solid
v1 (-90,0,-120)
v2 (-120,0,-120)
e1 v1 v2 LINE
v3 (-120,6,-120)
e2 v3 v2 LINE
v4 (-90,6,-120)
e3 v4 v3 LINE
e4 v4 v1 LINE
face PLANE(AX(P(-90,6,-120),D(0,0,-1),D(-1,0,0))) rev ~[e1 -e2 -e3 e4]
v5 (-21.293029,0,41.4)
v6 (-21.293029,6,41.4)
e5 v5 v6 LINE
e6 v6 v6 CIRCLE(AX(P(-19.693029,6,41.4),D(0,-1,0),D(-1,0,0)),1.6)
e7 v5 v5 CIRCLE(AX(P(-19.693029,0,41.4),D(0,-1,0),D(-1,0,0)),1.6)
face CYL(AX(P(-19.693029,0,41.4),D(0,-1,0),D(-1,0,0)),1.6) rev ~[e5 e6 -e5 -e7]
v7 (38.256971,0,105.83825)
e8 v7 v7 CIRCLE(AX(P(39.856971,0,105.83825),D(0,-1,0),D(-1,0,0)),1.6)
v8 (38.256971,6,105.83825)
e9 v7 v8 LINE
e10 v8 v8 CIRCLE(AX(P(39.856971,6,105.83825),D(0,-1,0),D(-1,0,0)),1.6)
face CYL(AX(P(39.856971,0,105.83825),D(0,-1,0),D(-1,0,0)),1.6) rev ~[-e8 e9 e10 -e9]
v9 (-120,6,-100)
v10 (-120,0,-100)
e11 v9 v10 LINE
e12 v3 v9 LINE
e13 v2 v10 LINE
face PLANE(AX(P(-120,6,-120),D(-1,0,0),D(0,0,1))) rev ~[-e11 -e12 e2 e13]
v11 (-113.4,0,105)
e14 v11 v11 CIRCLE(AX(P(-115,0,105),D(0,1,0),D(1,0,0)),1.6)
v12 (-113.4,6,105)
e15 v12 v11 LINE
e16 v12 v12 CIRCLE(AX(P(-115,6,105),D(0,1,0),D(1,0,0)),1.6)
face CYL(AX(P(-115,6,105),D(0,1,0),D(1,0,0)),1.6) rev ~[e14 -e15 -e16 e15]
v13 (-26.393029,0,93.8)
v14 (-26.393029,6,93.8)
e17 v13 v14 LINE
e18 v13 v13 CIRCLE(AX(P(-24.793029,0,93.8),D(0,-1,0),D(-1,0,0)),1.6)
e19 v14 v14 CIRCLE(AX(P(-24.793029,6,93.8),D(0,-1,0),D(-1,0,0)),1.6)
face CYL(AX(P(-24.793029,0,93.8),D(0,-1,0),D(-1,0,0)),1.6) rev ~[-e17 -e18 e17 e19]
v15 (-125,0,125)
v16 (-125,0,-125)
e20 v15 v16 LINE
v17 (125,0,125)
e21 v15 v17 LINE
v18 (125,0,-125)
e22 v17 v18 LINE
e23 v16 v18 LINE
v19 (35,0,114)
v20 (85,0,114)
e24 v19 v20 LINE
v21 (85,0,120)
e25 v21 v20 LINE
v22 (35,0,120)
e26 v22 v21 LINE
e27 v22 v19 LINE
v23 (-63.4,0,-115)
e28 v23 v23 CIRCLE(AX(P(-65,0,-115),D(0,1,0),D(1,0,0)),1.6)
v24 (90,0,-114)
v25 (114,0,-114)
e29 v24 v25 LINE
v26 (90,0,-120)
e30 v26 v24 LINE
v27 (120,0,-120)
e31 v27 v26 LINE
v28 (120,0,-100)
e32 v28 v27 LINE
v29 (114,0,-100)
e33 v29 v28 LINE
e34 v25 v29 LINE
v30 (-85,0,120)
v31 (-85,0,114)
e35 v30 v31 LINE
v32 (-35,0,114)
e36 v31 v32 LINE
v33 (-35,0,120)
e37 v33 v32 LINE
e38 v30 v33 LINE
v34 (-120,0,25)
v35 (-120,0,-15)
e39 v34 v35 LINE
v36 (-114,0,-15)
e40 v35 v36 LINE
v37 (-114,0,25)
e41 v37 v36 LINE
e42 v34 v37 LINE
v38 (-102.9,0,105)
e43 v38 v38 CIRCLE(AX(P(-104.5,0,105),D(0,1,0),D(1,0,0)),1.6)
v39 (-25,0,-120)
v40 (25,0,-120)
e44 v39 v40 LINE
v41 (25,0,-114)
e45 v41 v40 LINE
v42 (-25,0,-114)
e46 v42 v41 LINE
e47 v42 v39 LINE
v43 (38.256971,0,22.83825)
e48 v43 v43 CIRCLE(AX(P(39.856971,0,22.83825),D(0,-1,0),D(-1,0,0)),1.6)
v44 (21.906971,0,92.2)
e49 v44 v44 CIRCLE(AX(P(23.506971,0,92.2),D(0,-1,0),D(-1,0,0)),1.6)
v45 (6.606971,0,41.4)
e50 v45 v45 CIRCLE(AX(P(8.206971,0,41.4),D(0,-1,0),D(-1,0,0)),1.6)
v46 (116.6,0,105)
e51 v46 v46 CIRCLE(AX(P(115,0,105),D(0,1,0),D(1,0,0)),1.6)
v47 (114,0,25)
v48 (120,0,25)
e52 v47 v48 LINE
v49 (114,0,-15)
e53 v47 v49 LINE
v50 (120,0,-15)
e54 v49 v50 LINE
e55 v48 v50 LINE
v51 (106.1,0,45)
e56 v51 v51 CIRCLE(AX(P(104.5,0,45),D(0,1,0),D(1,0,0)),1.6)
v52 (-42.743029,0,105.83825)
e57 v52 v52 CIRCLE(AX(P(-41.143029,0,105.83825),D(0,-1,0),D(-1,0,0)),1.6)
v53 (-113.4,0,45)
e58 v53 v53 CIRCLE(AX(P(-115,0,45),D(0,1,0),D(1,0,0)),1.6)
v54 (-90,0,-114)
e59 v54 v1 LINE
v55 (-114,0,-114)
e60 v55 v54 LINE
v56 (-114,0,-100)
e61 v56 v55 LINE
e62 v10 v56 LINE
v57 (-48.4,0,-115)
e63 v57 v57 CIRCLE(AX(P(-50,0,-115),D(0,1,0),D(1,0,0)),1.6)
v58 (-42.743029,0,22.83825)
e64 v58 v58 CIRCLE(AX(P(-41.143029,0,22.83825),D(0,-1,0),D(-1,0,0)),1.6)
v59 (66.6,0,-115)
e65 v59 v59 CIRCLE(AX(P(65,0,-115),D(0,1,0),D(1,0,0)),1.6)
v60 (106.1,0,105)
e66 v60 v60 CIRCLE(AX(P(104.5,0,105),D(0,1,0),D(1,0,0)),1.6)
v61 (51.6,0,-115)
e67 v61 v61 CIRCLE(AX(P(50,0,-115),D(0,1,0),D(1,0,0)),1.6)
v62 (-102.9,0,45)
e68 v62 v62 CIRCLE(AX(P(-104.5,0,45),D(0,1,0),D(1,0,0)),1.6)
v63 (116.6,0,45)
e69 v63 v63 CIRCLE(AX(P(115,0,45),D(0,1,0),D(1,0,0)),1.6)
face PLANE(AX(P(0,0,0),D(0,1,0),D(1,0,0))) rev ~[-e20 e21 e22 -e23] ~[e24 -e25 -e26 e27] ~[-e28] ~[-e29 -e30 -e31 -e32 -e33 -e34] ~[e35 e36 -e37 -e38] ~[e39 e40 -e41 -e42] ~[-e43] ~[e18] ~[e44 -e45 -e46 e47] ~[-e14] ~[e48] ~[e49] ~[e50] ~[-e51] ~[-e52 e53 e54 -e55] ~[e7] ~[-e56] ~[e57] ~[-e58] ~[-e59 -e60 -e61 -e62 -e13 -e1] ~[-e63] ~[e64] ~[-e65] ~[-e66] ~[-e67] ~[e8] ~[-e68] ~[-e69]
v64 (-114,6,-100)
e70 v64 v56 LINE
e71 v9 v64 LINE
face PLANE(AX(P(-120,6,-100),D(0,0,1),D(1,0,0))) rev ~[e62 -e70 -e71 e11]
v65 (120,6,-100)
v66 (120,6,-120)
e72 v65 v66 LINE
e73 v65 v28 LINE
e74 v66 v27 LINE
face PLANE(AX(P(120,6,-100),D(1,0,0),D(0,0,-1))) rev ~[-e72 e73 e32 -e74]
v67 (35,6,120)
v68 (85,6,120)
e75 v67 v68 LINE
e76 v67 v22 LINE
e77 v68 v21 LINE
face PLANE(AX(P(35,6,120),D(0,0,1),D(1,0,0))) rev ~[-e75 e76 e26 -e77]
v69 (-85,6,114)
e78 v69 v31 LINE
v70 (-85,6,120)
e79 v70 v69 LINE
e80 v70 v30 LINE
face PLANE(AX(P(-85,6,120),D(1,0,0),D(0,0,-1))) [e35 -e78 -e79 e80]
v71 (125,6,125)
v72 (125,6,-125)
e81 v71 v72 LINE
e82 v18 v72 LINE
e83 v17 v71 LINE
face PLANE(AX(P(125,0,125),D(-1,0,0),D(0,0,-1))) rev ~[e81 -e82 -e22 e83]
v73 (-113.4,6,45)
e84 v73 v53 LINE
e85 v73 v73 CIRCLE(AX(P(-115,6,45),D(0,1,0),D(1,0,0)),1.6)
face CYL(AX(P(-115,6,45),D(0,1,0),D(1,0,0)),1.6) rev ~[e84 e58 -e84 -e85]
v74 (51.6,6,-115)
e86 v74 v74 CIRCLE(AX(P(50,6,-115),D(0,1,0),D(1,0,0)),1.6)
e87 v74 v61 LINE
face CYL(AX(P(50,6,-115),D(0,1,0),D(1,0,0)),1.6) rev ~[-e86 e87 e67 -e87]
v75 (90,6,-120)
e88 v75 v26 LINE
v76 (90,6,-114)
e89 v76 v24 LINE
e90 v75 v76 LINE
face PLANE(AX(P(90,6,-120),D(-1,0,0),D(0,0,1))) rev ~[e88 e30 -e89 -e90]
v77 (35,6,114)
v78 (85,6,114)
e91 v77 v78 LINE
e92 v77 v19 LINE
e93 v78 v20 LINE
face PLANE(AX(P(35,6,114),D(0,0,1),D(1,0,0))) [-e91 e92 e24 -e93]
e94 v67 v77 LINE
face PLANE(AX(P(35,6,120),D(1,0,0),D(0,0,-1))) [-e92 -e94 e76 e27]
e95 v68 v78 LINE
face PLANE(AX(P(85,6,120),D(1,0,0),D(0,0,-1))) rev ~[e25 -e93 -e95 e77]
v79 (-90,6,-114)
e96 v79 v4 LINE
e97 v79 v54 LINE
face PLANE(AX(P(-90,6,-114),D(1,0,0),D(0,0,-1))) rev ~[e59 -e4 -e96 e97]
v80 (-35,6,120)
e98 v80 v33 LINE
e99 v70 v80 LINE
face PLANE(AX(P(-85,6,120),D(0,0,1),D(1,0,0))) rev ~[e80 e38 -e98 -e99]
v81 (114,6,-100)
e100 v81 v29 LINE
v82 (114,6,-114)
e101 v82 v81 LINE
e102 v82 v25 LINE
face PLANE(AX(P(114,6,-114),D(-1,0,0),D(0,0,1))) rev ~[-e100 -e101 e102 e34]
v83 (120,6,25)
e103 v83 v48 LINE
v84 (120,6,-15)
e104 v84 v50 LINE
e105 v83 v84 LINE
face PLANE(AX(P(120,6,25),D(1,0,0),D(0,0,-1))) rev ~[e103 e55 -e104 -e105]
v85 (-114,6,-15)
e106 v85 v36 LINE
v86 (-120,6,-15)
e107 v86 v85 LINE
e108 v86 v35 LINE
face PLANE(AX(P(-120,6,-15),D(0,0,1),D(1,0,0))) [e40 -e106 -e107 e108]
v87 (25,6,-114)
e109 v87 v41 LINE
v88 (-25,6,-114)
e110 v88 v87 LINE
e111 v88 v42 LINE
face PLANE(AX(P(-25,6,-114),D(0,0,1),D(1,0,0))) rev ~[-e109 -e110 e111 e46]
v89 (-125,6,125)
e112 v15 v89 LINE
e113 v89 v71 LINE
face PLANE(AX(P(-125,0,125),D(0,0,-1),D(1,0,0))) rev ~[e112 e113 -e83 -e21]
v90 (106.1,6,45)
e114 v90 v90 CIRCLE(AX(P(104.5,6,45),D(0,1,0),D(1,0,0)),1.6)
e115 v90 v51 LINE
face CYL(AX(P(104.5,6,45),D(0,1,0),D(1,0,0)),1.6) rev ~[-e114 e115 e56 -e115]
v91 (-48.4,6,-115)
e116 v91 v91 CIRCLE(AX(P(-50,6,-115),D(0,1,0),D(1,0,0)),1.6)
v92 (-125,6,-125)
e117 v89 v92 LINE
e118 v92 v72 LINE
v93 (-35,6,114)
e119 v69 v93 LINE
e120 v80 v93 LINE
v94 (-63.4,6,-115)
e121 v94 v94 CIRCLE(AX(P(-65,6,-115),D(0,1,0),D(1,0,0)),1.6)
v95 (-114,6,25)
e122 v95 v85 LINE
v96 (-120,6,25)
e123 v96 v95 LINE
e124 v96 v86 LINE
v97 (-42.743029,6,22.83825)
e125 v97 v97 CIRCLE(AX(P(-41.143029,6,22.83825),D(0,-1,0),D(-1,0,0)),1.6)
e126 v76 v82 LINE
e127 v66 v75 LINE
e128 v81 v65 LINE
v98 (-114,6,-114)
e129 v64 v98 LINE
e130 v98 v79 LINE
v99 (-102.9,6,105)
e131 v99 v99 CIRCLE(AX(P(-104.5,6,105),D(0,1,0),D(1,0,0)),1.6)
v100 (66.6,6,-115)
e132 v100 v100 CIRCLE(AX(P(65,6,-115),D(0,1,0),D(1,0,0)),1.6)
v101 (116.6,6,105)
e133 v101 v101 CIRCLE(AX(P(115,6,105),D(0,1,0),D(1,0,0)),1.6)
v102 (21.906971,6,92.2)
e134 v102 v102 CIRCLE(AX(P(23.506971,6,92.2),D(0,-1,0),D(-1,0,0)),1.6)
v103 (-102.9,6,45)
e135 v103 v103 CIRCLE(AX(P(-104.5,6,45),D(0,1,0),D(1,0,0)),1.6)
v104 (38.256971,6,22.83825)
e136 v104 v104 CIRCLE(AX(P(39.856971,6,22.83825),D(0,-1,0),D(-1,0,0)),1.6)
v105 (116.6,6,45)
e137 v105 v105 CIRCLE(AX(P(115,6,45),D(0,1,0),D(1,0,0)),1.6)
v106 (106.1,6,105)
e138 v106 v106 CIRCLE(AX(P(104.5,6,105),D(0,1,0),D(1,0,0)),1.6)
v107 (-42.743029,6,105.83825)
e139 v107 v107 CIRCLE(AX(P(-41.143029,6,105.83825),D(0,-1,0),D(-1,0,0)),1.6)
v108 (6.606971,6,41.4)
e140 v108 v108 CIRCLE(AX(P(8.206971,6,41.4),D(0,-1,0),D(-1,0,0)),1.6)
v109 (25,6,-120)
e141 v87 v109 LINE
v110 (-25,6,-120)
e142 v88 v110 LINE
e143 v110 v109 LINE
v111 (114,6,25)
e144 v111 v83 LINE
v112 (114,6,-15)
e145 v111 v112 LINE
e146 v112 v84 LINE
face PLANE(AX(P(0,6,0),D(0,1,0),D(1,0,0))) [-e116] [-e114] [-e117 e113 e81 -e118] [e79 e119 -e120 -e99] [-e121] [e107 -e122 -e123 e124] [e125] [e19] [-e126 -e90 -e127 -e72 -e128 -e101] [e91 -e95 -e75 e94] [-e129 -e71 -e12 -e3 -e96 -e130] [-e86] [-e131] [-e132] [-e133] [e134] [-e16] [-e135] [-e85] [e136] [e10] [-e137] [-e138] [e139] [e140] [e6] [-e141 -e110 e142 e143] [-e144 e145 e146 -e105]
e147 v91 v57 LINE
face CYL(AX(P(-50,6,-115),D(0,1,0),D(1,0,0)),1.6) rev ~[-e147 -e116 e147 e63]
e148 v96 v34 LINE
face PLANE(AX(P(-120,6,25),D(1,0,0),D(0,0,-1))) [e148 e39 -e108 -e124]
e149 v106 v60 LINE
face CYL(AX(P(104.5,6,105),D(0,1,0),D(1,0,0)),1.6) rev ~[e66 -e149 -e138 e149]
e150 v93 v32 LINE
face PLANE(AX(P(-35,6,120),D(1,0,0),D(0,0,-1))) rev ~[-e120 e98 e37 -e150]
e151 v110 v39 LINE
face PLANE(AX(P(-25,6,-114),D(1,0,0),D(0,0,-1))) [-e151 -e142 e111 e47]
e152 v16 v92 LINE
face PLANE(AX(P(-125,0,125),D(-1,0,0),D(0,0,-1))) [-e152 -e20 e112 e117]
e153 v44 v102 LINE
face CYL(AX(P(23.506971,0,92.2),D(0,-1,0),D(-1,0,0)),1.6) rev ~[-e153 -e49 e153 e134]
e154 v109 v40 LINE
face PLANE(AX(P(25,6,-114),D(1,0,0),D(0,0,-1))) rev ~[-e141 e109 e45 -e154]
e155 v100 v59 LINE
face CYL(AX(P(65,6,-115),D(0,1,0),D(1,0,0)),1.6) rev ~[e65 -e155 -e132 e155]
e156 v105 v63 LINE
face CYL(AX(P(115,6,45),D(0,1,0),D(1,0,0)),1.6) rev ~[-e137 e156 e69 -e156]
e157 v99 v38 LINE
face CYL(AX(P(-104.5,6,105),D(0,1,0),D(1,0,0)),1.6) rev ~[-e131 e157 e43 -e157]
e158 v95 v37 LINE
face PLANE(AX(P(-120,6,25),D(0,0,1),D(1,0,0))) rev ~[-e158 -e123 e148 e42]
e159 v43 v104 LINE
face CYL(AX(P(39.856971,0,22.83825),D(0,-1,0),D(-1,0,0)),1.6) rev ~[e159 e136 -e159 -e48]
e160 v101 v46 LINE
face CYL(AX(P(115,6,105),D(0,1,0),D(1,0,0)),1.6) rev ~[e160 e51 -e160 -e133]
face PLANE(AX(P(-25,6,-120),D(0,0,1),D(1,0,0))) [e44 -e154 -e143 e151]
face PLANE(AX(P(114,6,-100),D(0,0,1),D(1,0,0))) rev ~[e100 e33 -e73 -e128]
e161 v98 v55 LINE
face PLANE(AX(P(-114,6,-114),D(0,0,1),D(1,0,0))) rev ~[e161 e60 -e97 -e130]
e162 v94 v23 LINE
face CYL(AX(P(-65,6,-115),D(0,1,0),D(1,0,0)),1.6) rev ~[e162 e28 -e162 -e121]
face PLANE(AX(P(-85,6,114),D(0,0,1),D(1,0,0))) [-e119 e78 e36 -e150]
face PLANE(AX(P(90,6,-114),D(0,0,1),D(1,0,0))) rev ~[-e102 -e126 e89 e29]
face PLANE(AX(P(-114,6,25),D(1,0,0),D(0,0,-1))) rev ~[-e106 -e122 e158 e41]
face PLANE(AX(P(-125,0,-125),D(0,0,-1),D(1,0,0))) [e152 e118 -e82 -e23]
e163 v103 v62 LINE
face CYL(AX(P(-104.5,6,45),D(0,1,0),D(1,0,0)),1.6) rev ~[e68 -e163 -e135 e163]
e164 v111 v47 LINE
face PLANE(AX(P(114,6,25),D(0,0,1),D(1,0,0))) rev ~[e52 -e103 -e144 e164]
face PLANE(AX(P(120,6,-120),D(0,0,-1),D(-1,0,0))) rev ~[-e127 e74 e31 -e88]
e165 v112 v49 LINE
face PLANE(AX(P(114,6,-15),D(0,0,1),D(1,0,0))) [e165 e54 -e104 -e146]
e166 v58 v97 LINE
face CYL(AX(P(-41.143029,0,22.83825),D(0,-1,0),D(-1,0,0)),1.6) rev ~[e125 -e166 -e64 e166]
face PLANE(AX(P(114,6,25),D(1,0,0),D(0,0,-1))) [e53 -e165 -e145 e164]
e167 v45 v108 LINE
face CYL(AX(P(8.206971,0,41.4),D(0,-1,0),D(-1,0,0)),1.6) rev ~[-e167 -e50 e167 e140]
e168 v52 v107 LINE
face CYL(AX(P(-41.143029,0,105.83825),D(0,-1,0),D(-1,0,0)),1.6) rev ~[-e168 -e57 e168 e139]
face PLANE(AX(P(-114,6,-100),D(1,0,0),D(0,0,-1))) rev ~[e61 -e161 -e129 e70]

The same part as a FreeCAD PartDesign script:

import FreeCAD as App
import Part
import Sketcher

doc = App.newDocument("Part")
body = doc.addObject("PartDesign::Body", "Body")

sketch1 = body.newObject("Sketcher::SketchObject", "Sketch")
sketch1.AttachmentSupport = (doc.getObject("XZ_Plane"), [""])
sketch1.MapMode = "FlatFace"
sketch1.addGeometry(Part.LineSegment(App.Vector(-125, -125, 0), App.Vector(-125, 125, 0)), False)
sketch1.addGeometry(Part.LineSegment(App.Vector(-125, 125, 0), App.Vector(125, 125, 0)), False)
sketch1.addGeometry(Part.LineSegment(App.Vector(125, 125, 0), App.Vector(125, -125, 0)), False)
sketch1.addGeometry(Part.LineSegment(App.Vector(125, -125, 0), App.Vector(-125, -125, 0)), False)
sketch1.addConstraint(Sketcher.Constraint("Coincident", 0, 2, 1, 1))
sketch1.addConstraint(Sketcher.Constraint("Coincident", 1, 2, 2, 1))
sketch1.addConstraint(Sketcher.Constraint("Coincident", 2, 2, 3, 1))
sketch1.addConstraint(Sketcher.Constraint("Coincident", 3, 2, 0, 1))
sketch1.addConstraint(Sketcher.Constraint("Vertical", 0))
sketch1.addConstraint(Sketcher.Constraint("Horizontal", 1))
sketch1.addConstraint(Sketcher.Constraint("Vertical", 2))
sketch1.addConstraint(Sketcher.Constraint("Horizontal", 3))
sketch1.addConstraint(Sketcher.Constraint("Symmetric", 0, 2, 2, 2, -1, 1))
sketch1.addConstraint(Sketcher.Constraint("Equal", 3, 0))
sketch1.addConstraint(Sketcher.Constraint("DistanceX", 1, 1, 1, 2, 250.0))
pad1 = body.newObject("PartDesign::Pad", "Pad")
pad1.Profile = sketch1
pad1.Length = 6
pad1.Reversed = True

sketch2 = body.newObject("Sketcher::SketchObject", "Sketch001")
sketch2.AttachmentSupport = (doc.getObject("XZ_Plane"), [""])
sketch2.MapMode = "FlatFace"
sketch2.AttachmentOffset = App.Placement(App.Vector(0, 0, -6), App.Rotation())
sketch2.addGeometry(Part.Circle(App.Vector(-115, 105, 0), App.Vector(0, 0, 1), 1.6), False)
sketch2.addConstraint(Sketcher.Constraint("Diameter", 0, 3.2))
sketch2.addConstraint(Sketcher.Constraint("DistanceX", 0, 3, -1, 1, 115.0))
sketch2.addConstraint(Sketcher.Constraint("DistanceY", -1, 1, 0, 3, 105.0))
pocket1 = body.newObject("PartDesign::Pocket", "Pocket")
pocket1.Profile = sketch2
pocket1.Type = "UpToFirst"
pocket1.Reversed = True

sketch3 = body.newObject("Sketcher::SketchObject", "Sketch002")
sketch3.AttachmentSupport = (doc.getObject("XZ_Plane"), [""])
sketch3.MapMode = "FlatFace"
sketch3.AttachmentOffset = App.Placement(App.Vector(0, 0, -6), App.Rotation())
sketch3.addGeometry(Part.Circle(App.Vector(-104.5, 105, 0), App.Vector(0, 0, 1), 1.6), False)
sketch3.addConstraint(Sketcher.Constraint("Diameter", 0, 3.2))
sketch3.addConstraint(Sketcher.Constraint("DistanceY", -1, 1, 0, 3, 105.0))
sketch3.addConstraint(Sketcher.Constraint("DistanceX", 0, 3, -1, 1, 104.5))
pocket2 = body.newObject("PartDesign::Pocket", "Pocket001")
pocket2.Profile = sketch3
pocket2.Type = "UpToFirst"
pocket2.Reversed = True

sketch4 = body.newObject("Sketcher::SketchObject", "Sketch003")
sketch4.AttachmentSupport = (doc.getObject("XZ_Plane"), [""])
sketch4.MapMode = "FlatFace"
sketch4.AttachmentOffset = App.Placement(App.Vector(0, 0, -6), App.Rotation())
sketch4.addGeometry(Part.Circle(App.Vector(-115, 45, 0), App.Vector(0, 0, 1), 1.6), False)
sketch4.addConstraint(Sketcher.Constraint("Diameter", 0, 3.2))
sketch4.addConstraint(Sketcher.Constraint("DistanceX", 0, 3, -1, 1, 115.0))
sketch4.addConstraint(Sketcher.Constraint("DistanceY", -1, 1, 0, 3, 45.0))
pocket3 = body.newObject("PartDesign::Pocket", "Pocket002")
pocket3.Profile = sketch4
pocket3.Type = "UpToFirst"
pocket3.Reversed = True

sketch5 = body.newObject("Sketcher::SketchObject", "Sketch004")
sketch5.AttachmentSupport = (doc.getObject("XZ_Plane"), [""])
sketch5.MapMode = "FlatFace"
sketch5.AttachmentOffset = App.Placement(App.Vector(0, 0, -6), App.Rotation())
sketch5.addGeometry(Part.Circle(App.Vector(-104.5, 45, 0), App.Vector(0, 0, 1), 1.6), False)
sketch5.addConstraint(Sketcher.Constraint("Diameter", 0, 3.2))
sketch5.addConstraint(Sketcher.Constraint("DistanceY", -1, 1, 0, 3, 45.0))
sketch5.addConstraint(Sketcher.Constraint("DistanceX", 0, 3, -1, 1, 104.5))
pocket4 = body.newObject("PartDesign::Pocket", "Pocket003")
pocket4.Profile = sketch5
pocket4.Type = "UpToFirst"
pocket4.Reversed = True

sketch6 = body.newObject("Sketcher::SketchObject", "Sketch005")
sketch6.AttachmentSupport = (doc.getObject("XZ_Plane"), [""])
sketch6.MapMode = "FlatFace"
sketch6.AttachmentOffset = App.Placement(App.Vector(0, 0, -6), App.Rotation())
sketch6.addGeometry(Part.Circle(App.Vector(115, 45, 0), App.Vector(0, 0, 1), 1.6), False)
sketch6.addConstraint(Sketcher.Constraint("Diameter", 0, 3.2))
sketch6.addConstraint(Sketcher.Constraint("DistanceX", -1, 1, 0, 3, 115.0))
sketch6.addConstraint(Sketcher.Constraint("DistanceY", -1, 1, 0, 3, 45.0))
pocket5 = body.newObject("PartDesign::Pocket", "Pocket004")
pocket5.Profile = sketch6
pocket5.Type = "UpToFirst"
pocket5.Reversed = True

sketch7 = body.newObject("Sketcher::SketchObject", "Sketch006")
sketch7.AttachmentSupport = (doc.getObject("XZ_Plane"), [""])
sketch7.MapMode = "FlatFace"
sketch7.AttachmentOffset = App.Placement(App.Vector(0, 0, -6), App.Rotation())
sketch7.addGeometry(Part.Circle(App.Vector(104.5, 45, 0), App.Vector(0, 0, 1), 1.6), False)
sketch7.addConstraint(Sketcher.Constraint("Diameter", 0, 3.2))
sketch7.addConstraint(Sketcher.Constraint("DistanceY", -1, 1, 0, 3, 45.0))
sketch7.addConstraint(Sketcher.Constraint("DistanceX", -1, 1, 0, 3, 104.5))
pocket6 = body.newObject("PartDesign::Pocket", "Pocket005")
pocket6.Profile = sketch7
pocket6.Type = "UpToFirst"
pocket6.Reversed = True

sketch8 = body.newObject("Sketcher::SketchObject", "Sketch007")
sketch8.AttachmentSupport = (doc.getObject("XZ_Plane"), [""])
sketch8.MapMode = "FlatFace"
sketch8.AttachmentOffset = App.Placement(App.Vector(0, 0, -6), App.Rotation())
sketch8.addGeometry(Part.Circle(App.Vector(115, 105, 0), App.Vector(0, 0, 1), 1.6), False)
sketch8.addConstraint(Sketcher.Constraint("Diameter", 0, 3.2))
sketch8.addConstraint(Sketcher.Constraint("DistanceX", -1, 1, 0, 3, 115.0))
sketch8.addConstraint(Sketcher.Constraint("DistanceY", -1, 1, 0, 3, 105.0))
pocket7 = body.newObject("PartDesign::Pocket", "Pocket006")
pocket7.Profile = sketch8
pocket7.Type = "UpToFirst"
pocket7.Reversed = True

sketch9 = body.newObject("Sketcher::SketchObject", "Sketch008")
sketch9.AttachmentSupport = (doc.getObject("XZ_Plane"), [""])
sketch9.MapMode = "FlatFace"
sketch9.AttachmentOffset = App.Placement(App.Vector(0, 0, -6), App.Rotation())
sketch9.addGeometry(Part.Circle(App.Vector(104.5, 105, 0), App.Vector(0, 0, 1), 1.6), False)
sketch9.addConstraint(Sketcher.Constraint("Diameter", 0, 3.2))
sketch9.addConstraint(Sketcher.Constraint("DistanceY", -1, 1, 0, 3, 105.0))
sketch9.addConstraint(Sketcher.Constraint("DistanceX", -1, 1, 0, 3, 104.5))
pocket8 = body.newObject("PartDesign::Pocket", "Pocket007")
pocket8.Profile = sketch9
pocket8.Type = "UpToFirst"
pocket8.Reversed = True

sketch10 = body.newObject("Sketcher::SketchObject", "Sketch009")
sketch10.AttachmentSupport = (doc.getObject("XZ_Plane"), [""])
sketch10.MapMode = "FlatFace"
sketch10.AttachmentOffset = App.Placement(App.Vector(0, 0, -6), App.Rotation())
sketch10.addGeometry(Part.Circle(App.Vector(-65, -115, 0), App.Vector(0, 0, 1), 1.6), False)
sketch10.addConstraint(Sketcher.Constraint("Diameter", 0, 3.2))
sketch10.addConstraint(Sketcher.Constraint("DistanceX", 0, 3, -1, 1, 65.0))
sketch10.addConstraint(Sketcher.Constraint("DistanceY", 0, 3, -1, 1, 115.0))
pocket9 = body.newObject("PartDesign::Pocket", "Pocket008")
pocket9.Profile = sketch10
pocket9.Type = "UpToFirst"
pocket9.Reversed = True

sketch11 = body.newObject("Sketcher::SketchObject", "Sketch010")
sketch11.AttachmentSupport = (doc.getObject("XZ_Plane"), [""])
sketch11.MapMode = "FlatFace"
sketch11.AttachmentOffset = App.Placement(App.Vector(0, 0, -6), App.Rotation())
sketch11.addGeometry(Part.Circle(App.Vector(-50, -115, 0), App.Vector(0, 0, 1), 1.6), False)
sketch11.addConstraint(Sketcher.Constraint("Diameter", 0, 3.2))
sketch11.addConstraint(Sketcher.Constraint("DistanceX", 0, 3, -1, 1, 50.0))
sketch11.addConstraint(Sketcher.Constraint("DistanceY", 0, 3, -1, 1, 115.0))
pocket10 = body.newObject("PartDesign::Pocket", "Pocket009")
pocket10.Profile = sketch11
pocket10.Type = "UpToFirst"
pocket10.Reversed = True

sketch12 = body.newObject("Sketcher::SketchObject", "Sketch011")
sketch12.AttachmentSupport = (doc.getObject("XZ_Plane"), [""])
sketch12.MapMode = "FlatFace"
sketch12.AttachmentOffset = App.Placement(App.Vector(0, 0, -6), App.Rotation())
sketch12.addGeometry(Part.Circle(App.Vector(50, -115, 0), App.Vector(0, 0, 1), 1.6), False)
sketch12.addConstraint(Sketcher.Constraint("Diameter", 0, 3.2))
sketch12.addConstraint(Sketcher.Constraint("DistanceX", -1, 1, 0, 3, 50.0))
sketch12.addConstraint(Sketcher.Constraint("DistanceY", 0, 3, -1, 1, 115.0))
pocket11 = body.newObject("PartDesign::Pocket", "Pocket010")
pocket11.Profile = sketch12
pocket11.Type = "UpToFirst"
pocket11.Reversed = True

sketch13 = body.newObject("Sketcher::SketchObject", "Sketch012")
sketch13.AttachmentSupport = (doc.getObject("XZ_Plane"), [""])
sketch13.MapMode = "FlatFace"
sketch13.AttachmentOffset = App.Placement(App.Vector(0, 0, -6), App.Rotation())
sketch13.addGeometry(Part.Circle(App.Vector(65, -115, 0), App.Vector(0, 0, 1), 1.6), False)
sketch13.addConstraint(Sketcher.Constraint("Diameter", 0, 3.2))
sketch13.addConstraint(Sketcher.Constraint("DistanceX", -1, 1, 0, 3, 65.0))
sketch13.addConstraint(Sketcher.Constraint("DistanceY", 0, 3, -1, 1, 115.0))
pocket12 = body.newObject("PartDesign::Pocket", "Pocket011")
pocket12.Profile = sketch13
pocket12.Type = "UpToFirst"
pocket12.Reversed = True

sketch14 = body.newObject("Sketcher::SketchObject", "Sketch013")
sketch14.AttachmentSupport = (doc.getObject("XZ_Plane"), [""])
sketch14.MapMode = "FlatFace"
sketch14.AttachmentOffset = App.Placement(App.Vector(0, 0, -6), App.Rotation())
sketch14.addGeometry(Part.LineSegment(App.Vector(-90, -120, 0), App.Vector(-120, -120, 0)), False)
sketch14.addGeometry(Part.LineSegment(App.Vector(-120, -120, 0), App.Vector(-120, -100, 0)), False)
sketch14.addGeometry(Part.LineSegment(App.Vector(-120, -100, 0), App.Vector(-114, -100, 0)), False)
sketch14.addGeometry(Part.LineSegment(App.Vector(-114, -100, 0), App.Vector(-114, -114, 0)), False)
sketch14.addGeometry(Part.LineSegment(App.Vector(-114, -114, 0), App.Vector(-90, -114, 0)), False)
sketch14.addGeometry(Part.LineSegment(App.Vector(-90, -114, 0), App.Vector(-90, -120, 0)), False)
sketch14.addGeometry(Part.LineSegment(App.Vector(-120, -15, 0), App.Vector(-120, 25, 0)), False)
sketch14.addGeometry(Part.LineSegment(App.Vector(-120, 25, 0), App.Vector(-114, 25, 0)), False)
sketch14.addGeometry(Part.LineSegment(App.Vector(-114, 25, 0), App.Vector(-114, -15, 0)), False)
sketch14.addGeometry(Part.LineSegment(App.Vector(-114, -15, 0), App.Vector(-120, -15, 0)), False)
sketch14.addGeometry(Part.LineSegment(App.Vector(-85, 114, 0), App.Vector(-85, 120, 0)), False)
sketch14.addGeometry(Part.LineSegment(App.Vector(-85, 120, 0), App.Vector(-35, 120, 0)), False)
sketch14.addGeometry(Part.LineSegment(App.Vector(-35, 120, 0), App.Vector(-35, 114, 0)), False)
sketch14.addGeometry(Part.LineSegment(App.Vector(-35, 114, 0), App.Vector(-85, 114, 0)), False)
sketch14.addGeometry(Part.LineSegment(App.Vector(35, 114, 0), App.Vector(35, 120, 0)), False)
sketch14.addGeometry(Part.LineSegment(App.Vector(35, 120, 0), App.Vector(85, 120, 0)), False)
sketch14.addGeometry(Part.LineSegment(App.Vector(85, 120, 0), App.Vector(85, 114, 0)), False)
sketch14.addGeometry(Part.LineSegment(App.Vector(85, 114, 0), App.Vector(35, 114, 0)), False)
sketch14.addGeometry(Part.LineSegment(App.Vector(120, -100, 0), App.Vector(120, -120, 0)), False)
sketch14.addGeometry(Part.LineSegment(App.Vector(120, -120, 0), App.Vector(90, -120, 0)), False)
sketch14.addGeometry(Part.LineSegment(App.Vector(90, -120, 0), App.Vector(90, -114, 0)), False)
sketch14.addGeometry(Part.LineSegment(App.Vector(90, -114, 0), App.Vector(114, -114, 0)), False)
sketch14.addGeometry(Part.LineSegment(App.Vector(114, -114, 0), App.Vector(114, -100, 0)), False)
sketch14.addGeometry(Part.LineSegment(App.Vector(114, -100, 0), App.Vector(120, -100, 0)), False)
sketch14.addGeometry(Part.LineSegment(App.Vector(114, -15, 0), App.Vector(114, 25, 0)), False)
sketch14.addGeometry(Part.LineSegment(App.Vector(114, 25, 0), App.Vector(120, 25, 0)), False)
sketch14.addGeometry(Part.LineSegment(App.Vector(120, 25, 0), App.Vector(120, -15, 0)), False)
sketch14.addGeometry(Part.LineSegment(App.Vector(120, -15, 0), App.Vector(114, -15, 0)), False)
sketch14.addGeometry(Part.LineSegment(App.Vector(-25, -120, 0), App.Vector(-25, -114, 0)), False)
sketch14.addGeometry(Part.LineSegment(App.Vector(-25, -114, 0), App.Vector(25, -114, 0)), False)
sketch14.addGeometry(Part.LineSegment(App.Vector(25, -114, 0), App.Vector(25, -120, 0)), False)
sketch14.addGeometry(Part.LineSegment(App.Vector(25, -120, 0), App.Vector(-25, -120, 0)), False)
sketch14.addConstraint(Sketcher.Constraint("Coincident", 0, 2, 1, 1))
sketch14.addConstraint(Sketcher.Constraint("Coincident", 1, 2, 2, 1))
sketch14.addConstraint(Sketcher.Constraint("Coincident", 2, 2, 3, 1))
sketch14.addConstraint(Sketcher.Constraint("Coincident", 3, 2, 4, 1))
sketch14.addConstraint(Sketcher.Constraint("Coincident", 4, 2, 5, 1))
sketch14.addConstraint(Sketcher.Constraint("Coincident", 5, 2, 0, 1))
sketch14.addConstraint(Sketcher.Constraint("Coincident", 6, 2, 7, 1))
sketch14.addConstraint(Sketcher.Constraint("Coincident", 7, 2, 8, 1))
sketch14.addConstraint(Sketcher.Constraint("Coincident", 8, 2, 9, 1))
sketch14.addConstraint(Sketcher.Constraint("Coincident", 9, 2, 6, 1))
sketch14.addConstraint(Sketcher.Constraint("Coincident", 10, 2, 11, 1))
sketch14.addConstraint(Sketcher.Constraint("Coincident", 11, 2, 12, 1))
sketch14.addConstraint(Sketcher.Constraint("Coincident", 12, 2, 13, 1))
sketch14.addConstraint(Sketcher.Constraint("Coincident", 13, 2, 10, 1))
sketch14.addConstraint(Sketcher.Constraint("Coincident", 14, 2, 15, 1))
sketch14.addConstraint(Sketcher.Constraint("Coincident", 15, 2, 16, 1))
sketch14.addConstraint(Sketcher.Constraint("Coincident", 16, 2, 17, 1))
sketch14.addConstraint(Sketcher.Constraint("Coincident", 17, 2, 14, 1))
sketch14.addConstraint(Sketcher.Constraint("Coincident", 18, 2, 19, 1))
sketch14.addConstraint(Sketcher.Constraint("Coincident", 19, 2, 20, 1))
sketch14.addConstraint(Sketcher.Constraint("Coincident", 20, 2, 21, 1))
sketch14.addConstraint(Sketcher.Constraint("Coincident", 21, 2, 22, 1))
sketch14.addConstraint(Sketcher.Constraint("Coincident", 22, 2, 23, 1))
sketch14.addConstraint(Sketcher.Constraint("Coincident", 23, 2, 18, 1))
sketch14.addConstraint(Sketcher.Constraint("Coincident", 24, 2, 25, 1))
sketch14.addConstraint(Sketcher.Constraint("Coincident", 25, 2, 26, 1))
sketch14.addConstraint(Sketcher.Constraint("Coincident", 26, 2, 27, 1))
sketch14.addConstraint(Sketcher.Constraint("Coincident", 27, 2, 24, 1))
sketch14.addConstraint(Sketcher.Constraint("Coincident", 28, 2, 29, 1))
sketch14.addConstraint(Sketcher.Constraint("Coincident", 29, 2, 30, 1))
sketch14.addConstraint(Sketcher.Constraint("Coincident", 30, 2, 31, 1))
sketch14.addConstraint(Sketcher.Constraint("Coincident", 31, 2, 28, 1))
sketch14.addConstraint(Sketcher.Constraint("Horizontal", 0))
sketch14.addConstraint(Sketcher.Constraint("Vertical", 1))
sketch14.addConstraint(Sketcher.Constraint("Horizontal", 2))
sketch14.addConstraint(Sketcher.Constraint("Vertical", 3))
sketch14.addConstraint(Sketcher.Constraint("Horizontal", 4))
sketch14.addConstraint(Sketcher.Constraint("Vertical", 5))
sketch14.addConstraint(Sketcher.Constraint("Vertical", 6))
sketch14.addConstraint(Sketcher.Constraint("Horizontal", 7))
sketch14.addConstraint(Sketcher.Constraint("Vertical", 8))
sketch14.addConstraint(Sketcher.Constraint("Horizontal", 9))
sketch14.addConstraint(Sketcher.Constraint("Vertical", 10))
sketch14.addConstraint(Sketcher.Constraint("Horizontal", 11))
sketch14.addConstraint(Sketcher.Constraint("Vertical", 12))
sketch14.addConstraint(Sketcher.Constraint("Horizontal", 13))
sketch14.addConstraint(Sketcher.Constraint("Vertical", 14))
sketch14.addConstraint(Sketcher.Constraint("Horizontal", 15))
sketch14.addConstraint(Sketcher.Constraint("Vertical", 16))
sketch14.addConstraint(Sketcher.Constraint("Horizontal", 17))
sketch14.addConstraint(Sketcher.Constraint("Vertical", 18))
sketch14.addConstraint(Sketcher.Constraint("Horizontal", 19))
sketch14.addConstraint(Sketcher.Constraint("Vertical", 20))
sketch14.addConstraint(Sketcher.Constraint("Horizontal", 21))
sketch14.addConstraint(Sketcher.Constraint("Vertical", 22))
sketch14.addConstraint(Sketcher.Constraint("Horizontal", 23))
sketch14.addConstraint(Sketcher.Constraint("Vertical", 24))
sketch14.addConstraint(Sketcher.Constraint("Horizontal", 25))
sketch14.addConstraint(Sketcher.Constraint("Vertical", 26))
sketch14.addConstraint(Sketcher.Constraint("Horizontal", 27))
sketch14.addConstraint(Sketcher.Constraint("Vertical", 28))
sketch14.addConstraint(Sketcher.Constraint("Horizontal", 29))
sketch14.addConstraint(Sketcher.Constraint("Vertical", 30))
sketch14.addConstraint(Sketcher.Constraint("Horizontal", 31))
sketch14.addConstraint(Sketcher.Constraint("Symmetric", 11, 2, 14, 2, -2))
sketch14.addConstraint(Sketcher.Constraint("Symmetric", 13, 2, 16, 2, -2))
sketch14.addConstraint(Sketcher.Constraint("Symmetric", 0, 2, 18, 2, -2))
sketch14.addConstraint(Sketcher.Constraint("Symmetric", 4, 2, 20, 2, -2))
sketch14.addConstraint(Sketcher.Constraint("Symmetric", 2, 2, 22, 2, -2))
sketch14.addConstraint(Sketcher.Constraint("Symmetric", 7, 2, 24, 2, -2))
sketch14.addConstraint(Sketcher.Constraint("Symmetric", 9, 2, 26, 2, -2))
sketch14.addConstraint(Sketcher.Constraint("Horizontal", 21, 2, 28, 2))
sketch14.addConstraint(Sketcher.Constraint("Horizontal", 19, 2, 30, 2))
sketch14.addConstraint(Sketcher.Constraint("Vertical", 1, 2, 6, 2))
sketch14.addConstraint(Sketcher.Constraint("Vertical", 3, 2, 7, 2))
sketch14.addConstraint(Sketcher.Constraint("Equal", 17, 29))
sketch14.addConstraint(Sketcher.Constraint("Equal", 27, 5))
sketch14.addConstraint(Sketcher.Constraint("Equal", 5, 10))
sketch14.addConstraint(Sketcher.Constraint("DistanceX", 0, 2, 0, 1, 30.0))
sketch14.addConstraint(Sketcher.Constraint("DistanceX", 2, 1, 2, 2, 6.0))
sketch14.addConstraint(Sketcher.Constraint("DistanceX", 11, 1, 11, 2, 50.0))
sketch14.addConstraint(Sketcher.Constraint("DistanceY", 1, 1, 1, 2, 20.0))
sketch14.addConstraint(Sketcher.Constraint("DistanceY", 6, 1, 6, 2, 40.0))
sketch14.addConstraint(Sketcher.Constraint("DistanceX", 0, 2, -1, 1, 120.0))
sketch14.addConstraint(Sketcher.Constraint("DistanceY", 0, 2, -1, 1, 120.0))
sketch14.addConstraint(Sketcher.Constraint("DistanceY", -1, 1, 6, 2, 25.0))
sketch14.addConstraint(Sketcher.Constraint("DistanceX", 10, 2, -1, 1, 85.0))
sketch14.addConstraint(Sketcher.Constraint("DistanceY", -1, 1, 10, 2, 120.0))
sketch14.addConstraint(Sketcher.Constraint("DistanceX", 28, 2, -1, 1, 25.0))
pocket13 = body.newObject("PartDesign::Pocket", "Pocket012")
pocket13.Profile = sketch14
pocket13.Length = 6
pocket13.Reversed = True

sketch15 = body.newObject("Sketcher::SketchObject", "Sketch014")
sketch15.AttachmentSupport = (doc.getObject("XZ_Plane"), [""])
sketch15.MapMode = "FlatFace"
sketch15.addGeometry(Part.Circle(App.Vector(-19.7, 41.4, 0), App.Vector(0, 0, 1), 1.6), False)
sketch15.addConstraint(Sketcher.Constraint("Diameter", 0, 3.2))
sketch15.addConstraint(Sketcher.Constraint("DistanceY", -1, 1, 0, 3, 41.4))
sketch15.addConstraint(Sketcher.Constraint("DistanceX", 0, 3, -1, 1, 19.693029))
pocket14 = body.newObject("PartDesign::Pocket", "Pocket013")
pocket14.Profile = sketch15
pocket14.Type = "UpToFirst"

sketch16 = body.newObject("Sketcher::SketchObject", "Sketch015")
sketch16.AttachmentSupport = (doc.getObject("XZ_Plane"), [""])
sketch16.MapMode = "FlatFace"
sketch16.addGeometry(Part.Circle(App.Vector(8.2, 41.4, 0), App.Vector(0, 0, 1), 1.6), False)
sketch16.addConstraint(Sketcher.Constraint("Diameter", 0, 3.2))
sketch16.addConstraint(Sketcher.Constraint("DistanceY", -1, 1, 0, 3, 41.4))
sketch16.addConstraint(Sketcher.Constraint("DistanceX", -1, 1, 0, 3, 8.206971))
pocket15 = body.newObject("PartDesign::Pocket", "Pocket014")
pocket15.Profile = sketch16
pocket15.Type = "UpToFirst"

sketch17 = body.newObject("Sketcher::SketchObject", "Sketch016")
sketch17.AttachmentSupport = (doc.getObject("XZ_Plane"), [""])
sketch17.MapMode = "FlatFace"
sketch17.addGeometry(Part.Circle(App.Vector(23.5, 92.2, 0), App.Vector(0, 0, 1), 1.6), False)
sketch17.addConstraint(Sketcher.Constraint("Diameter", 0, 3.2))
sketch17.addConstraint(Sketcher.Constraint("DistanceY", -1, 1, 0, 3, 92.2))
sketch17.addConstraint(Sketcher.Constraint("DistanceX", -1, 1, 0, 3, 23.506971))
pocket16 = body.newObject("PartDesign::Pocket", "Pocket015")
pocket16.Profile = sketch17
pocket16.Type = "UpToFirst"

sketch18 = body.newObject("Sketcher::SketchObject", "Sketch017")
sketch18.AttachmentSupport = (doc.getObject("XZ_Plane"), [""])
sketch18.MapMode = "FlatFace"
sketch18.addGeometry(Part.Circle(App.Vector(-24.8, 93.8, 0), App.Vector(0, 0, 1), 1.6), False)
sketch18.addConstraint(Sketcher.Constraint("Diameter", 0, 3.2))
sketch18.addConstraint(Sketcher.Constraint("DistanceY", -1, 1, 0, 3, 93.8))
sketch18.addConstraint(Sketcher.Constraint("DistanceX", 0, 3, -1, 1, 24.793029))
pocket17 = body.newObject("PartDesign::Pocket", "Pocket016")
pocket17.Profile = sketch18
pocket17.Type = "UpToFirst"

sketch19 = body.newObject("Sketcher::SketchObject", "Sketch018")
sketch19.AttachmentSupport = (doc.getObject("XZ_Plane"), [""])
sketch19.MapMode = "FlatFace"
sketch19.addGeometry(Part.Circle(App.Vector(-41.1, 105.8, 0), App.Vector(0, 0, 1), 1.6), False)
sketch19.addConstraint(Sketcher.Constraint("Diameter", 0, 3.2))
sketch19.addConstraint(Sketcher.Constraint("DistanceX", 0, 3, -1, 1, 41.143029))
sketch19.addConstraint(Sketcher.Constraint("DistanceY", -1, 1, 0, 3, 105.83825))
pocket18 = body.newObject("PartDesign::Pocket", "Pocket017")
pocket18.Profile = sketch19
pocket18.Type = "UpToFirst"

sketch20 = body.newObject("Sketcher::SketchObject", "Sketch019")
sketch20.AttachmentSupport = (doc.getObject("XZ_Plane"), [""])
sketch20.MapMode = "FlatFace"
sketch20.addGeometry(Part.Circle(App.Vector(-41.1, 22.8, 0), App.Vector(0, 0, 1), 1.6), False)
sketch20.addConstraint(Sketcher.Constraint("Diameter", 0, 3.2))
sketch20.addConstraint(Sketcher.Constraint("DistanceX", 0, 3, -1, 1, 41.143029))
sketch20.addConstraint(Sketcher.Constraint("DistanceY", -1, 1, 0, 3, 22.83825))
pocket19 = body.newObject("PartDesign::Pocket", "Pocket018")
pocket19.Profile = sketch20
pocket19.Type = "UpToFirst"

sketch21 = body.newObject("Sketcher::SketchObject", "Sketch020")
sketch21.AttachmentSupport = (doc.getObject("XZ_Plane"), [""])
sketch21.MapMode = "FlatFace"
sketch21.addGeometry(Part.Circle(App.Vector(39.9, 22.8, 0), App.Vector(0, 0, 1), 1.6), False)
sketch21.addConstraint(Sketcher.Constraint("Diameter", 0, 3.2))
sketch21.addConstraint(Sketcher.Constraint("DistanceX", -1, 1, 0, 3, 39.856971))
sketch21.addConstraint(Sketcher.Constraint("DistanceY", -1, 1, 0, 3, 22.83825))
pocket20 = body.newObject("PartDesign::Pocket", "Pocket019")
pocket20.Profile = sketch21
pocket20.Type = "UpToFirst"

sketch22 = body.newObject("Sketcher::SketchObject", "Sketch021")
sketch22.AttachmentSupport = (doc.getObject("XZ_Plane"), [""])
sketch22.MapMode = "FlatFace"
sketch22.addGeometry(Part.Circle(App.Vector(39.9, 105.8, 0), App.Vector(0, 0, 1), 1.6), False)
sketch22.addConstraint(Sketcher.Constraint("Diameter", 0, 3.2))
sketch22.addConstraint(Sketcher.Constraint("DistanceX", -1, 1, 0, 3, 39.856971))
sketch22.addConstraint(Sketcher.Constraint("DistanceY", -1, 1, 0, 3, 105.83825))
pocket21 = body.newObject("PartDesign::Pocket", "Pocket020")
pocket21.Profile = sketch22
pocket21.Type = "UpToFirst"

doc.recompute()
